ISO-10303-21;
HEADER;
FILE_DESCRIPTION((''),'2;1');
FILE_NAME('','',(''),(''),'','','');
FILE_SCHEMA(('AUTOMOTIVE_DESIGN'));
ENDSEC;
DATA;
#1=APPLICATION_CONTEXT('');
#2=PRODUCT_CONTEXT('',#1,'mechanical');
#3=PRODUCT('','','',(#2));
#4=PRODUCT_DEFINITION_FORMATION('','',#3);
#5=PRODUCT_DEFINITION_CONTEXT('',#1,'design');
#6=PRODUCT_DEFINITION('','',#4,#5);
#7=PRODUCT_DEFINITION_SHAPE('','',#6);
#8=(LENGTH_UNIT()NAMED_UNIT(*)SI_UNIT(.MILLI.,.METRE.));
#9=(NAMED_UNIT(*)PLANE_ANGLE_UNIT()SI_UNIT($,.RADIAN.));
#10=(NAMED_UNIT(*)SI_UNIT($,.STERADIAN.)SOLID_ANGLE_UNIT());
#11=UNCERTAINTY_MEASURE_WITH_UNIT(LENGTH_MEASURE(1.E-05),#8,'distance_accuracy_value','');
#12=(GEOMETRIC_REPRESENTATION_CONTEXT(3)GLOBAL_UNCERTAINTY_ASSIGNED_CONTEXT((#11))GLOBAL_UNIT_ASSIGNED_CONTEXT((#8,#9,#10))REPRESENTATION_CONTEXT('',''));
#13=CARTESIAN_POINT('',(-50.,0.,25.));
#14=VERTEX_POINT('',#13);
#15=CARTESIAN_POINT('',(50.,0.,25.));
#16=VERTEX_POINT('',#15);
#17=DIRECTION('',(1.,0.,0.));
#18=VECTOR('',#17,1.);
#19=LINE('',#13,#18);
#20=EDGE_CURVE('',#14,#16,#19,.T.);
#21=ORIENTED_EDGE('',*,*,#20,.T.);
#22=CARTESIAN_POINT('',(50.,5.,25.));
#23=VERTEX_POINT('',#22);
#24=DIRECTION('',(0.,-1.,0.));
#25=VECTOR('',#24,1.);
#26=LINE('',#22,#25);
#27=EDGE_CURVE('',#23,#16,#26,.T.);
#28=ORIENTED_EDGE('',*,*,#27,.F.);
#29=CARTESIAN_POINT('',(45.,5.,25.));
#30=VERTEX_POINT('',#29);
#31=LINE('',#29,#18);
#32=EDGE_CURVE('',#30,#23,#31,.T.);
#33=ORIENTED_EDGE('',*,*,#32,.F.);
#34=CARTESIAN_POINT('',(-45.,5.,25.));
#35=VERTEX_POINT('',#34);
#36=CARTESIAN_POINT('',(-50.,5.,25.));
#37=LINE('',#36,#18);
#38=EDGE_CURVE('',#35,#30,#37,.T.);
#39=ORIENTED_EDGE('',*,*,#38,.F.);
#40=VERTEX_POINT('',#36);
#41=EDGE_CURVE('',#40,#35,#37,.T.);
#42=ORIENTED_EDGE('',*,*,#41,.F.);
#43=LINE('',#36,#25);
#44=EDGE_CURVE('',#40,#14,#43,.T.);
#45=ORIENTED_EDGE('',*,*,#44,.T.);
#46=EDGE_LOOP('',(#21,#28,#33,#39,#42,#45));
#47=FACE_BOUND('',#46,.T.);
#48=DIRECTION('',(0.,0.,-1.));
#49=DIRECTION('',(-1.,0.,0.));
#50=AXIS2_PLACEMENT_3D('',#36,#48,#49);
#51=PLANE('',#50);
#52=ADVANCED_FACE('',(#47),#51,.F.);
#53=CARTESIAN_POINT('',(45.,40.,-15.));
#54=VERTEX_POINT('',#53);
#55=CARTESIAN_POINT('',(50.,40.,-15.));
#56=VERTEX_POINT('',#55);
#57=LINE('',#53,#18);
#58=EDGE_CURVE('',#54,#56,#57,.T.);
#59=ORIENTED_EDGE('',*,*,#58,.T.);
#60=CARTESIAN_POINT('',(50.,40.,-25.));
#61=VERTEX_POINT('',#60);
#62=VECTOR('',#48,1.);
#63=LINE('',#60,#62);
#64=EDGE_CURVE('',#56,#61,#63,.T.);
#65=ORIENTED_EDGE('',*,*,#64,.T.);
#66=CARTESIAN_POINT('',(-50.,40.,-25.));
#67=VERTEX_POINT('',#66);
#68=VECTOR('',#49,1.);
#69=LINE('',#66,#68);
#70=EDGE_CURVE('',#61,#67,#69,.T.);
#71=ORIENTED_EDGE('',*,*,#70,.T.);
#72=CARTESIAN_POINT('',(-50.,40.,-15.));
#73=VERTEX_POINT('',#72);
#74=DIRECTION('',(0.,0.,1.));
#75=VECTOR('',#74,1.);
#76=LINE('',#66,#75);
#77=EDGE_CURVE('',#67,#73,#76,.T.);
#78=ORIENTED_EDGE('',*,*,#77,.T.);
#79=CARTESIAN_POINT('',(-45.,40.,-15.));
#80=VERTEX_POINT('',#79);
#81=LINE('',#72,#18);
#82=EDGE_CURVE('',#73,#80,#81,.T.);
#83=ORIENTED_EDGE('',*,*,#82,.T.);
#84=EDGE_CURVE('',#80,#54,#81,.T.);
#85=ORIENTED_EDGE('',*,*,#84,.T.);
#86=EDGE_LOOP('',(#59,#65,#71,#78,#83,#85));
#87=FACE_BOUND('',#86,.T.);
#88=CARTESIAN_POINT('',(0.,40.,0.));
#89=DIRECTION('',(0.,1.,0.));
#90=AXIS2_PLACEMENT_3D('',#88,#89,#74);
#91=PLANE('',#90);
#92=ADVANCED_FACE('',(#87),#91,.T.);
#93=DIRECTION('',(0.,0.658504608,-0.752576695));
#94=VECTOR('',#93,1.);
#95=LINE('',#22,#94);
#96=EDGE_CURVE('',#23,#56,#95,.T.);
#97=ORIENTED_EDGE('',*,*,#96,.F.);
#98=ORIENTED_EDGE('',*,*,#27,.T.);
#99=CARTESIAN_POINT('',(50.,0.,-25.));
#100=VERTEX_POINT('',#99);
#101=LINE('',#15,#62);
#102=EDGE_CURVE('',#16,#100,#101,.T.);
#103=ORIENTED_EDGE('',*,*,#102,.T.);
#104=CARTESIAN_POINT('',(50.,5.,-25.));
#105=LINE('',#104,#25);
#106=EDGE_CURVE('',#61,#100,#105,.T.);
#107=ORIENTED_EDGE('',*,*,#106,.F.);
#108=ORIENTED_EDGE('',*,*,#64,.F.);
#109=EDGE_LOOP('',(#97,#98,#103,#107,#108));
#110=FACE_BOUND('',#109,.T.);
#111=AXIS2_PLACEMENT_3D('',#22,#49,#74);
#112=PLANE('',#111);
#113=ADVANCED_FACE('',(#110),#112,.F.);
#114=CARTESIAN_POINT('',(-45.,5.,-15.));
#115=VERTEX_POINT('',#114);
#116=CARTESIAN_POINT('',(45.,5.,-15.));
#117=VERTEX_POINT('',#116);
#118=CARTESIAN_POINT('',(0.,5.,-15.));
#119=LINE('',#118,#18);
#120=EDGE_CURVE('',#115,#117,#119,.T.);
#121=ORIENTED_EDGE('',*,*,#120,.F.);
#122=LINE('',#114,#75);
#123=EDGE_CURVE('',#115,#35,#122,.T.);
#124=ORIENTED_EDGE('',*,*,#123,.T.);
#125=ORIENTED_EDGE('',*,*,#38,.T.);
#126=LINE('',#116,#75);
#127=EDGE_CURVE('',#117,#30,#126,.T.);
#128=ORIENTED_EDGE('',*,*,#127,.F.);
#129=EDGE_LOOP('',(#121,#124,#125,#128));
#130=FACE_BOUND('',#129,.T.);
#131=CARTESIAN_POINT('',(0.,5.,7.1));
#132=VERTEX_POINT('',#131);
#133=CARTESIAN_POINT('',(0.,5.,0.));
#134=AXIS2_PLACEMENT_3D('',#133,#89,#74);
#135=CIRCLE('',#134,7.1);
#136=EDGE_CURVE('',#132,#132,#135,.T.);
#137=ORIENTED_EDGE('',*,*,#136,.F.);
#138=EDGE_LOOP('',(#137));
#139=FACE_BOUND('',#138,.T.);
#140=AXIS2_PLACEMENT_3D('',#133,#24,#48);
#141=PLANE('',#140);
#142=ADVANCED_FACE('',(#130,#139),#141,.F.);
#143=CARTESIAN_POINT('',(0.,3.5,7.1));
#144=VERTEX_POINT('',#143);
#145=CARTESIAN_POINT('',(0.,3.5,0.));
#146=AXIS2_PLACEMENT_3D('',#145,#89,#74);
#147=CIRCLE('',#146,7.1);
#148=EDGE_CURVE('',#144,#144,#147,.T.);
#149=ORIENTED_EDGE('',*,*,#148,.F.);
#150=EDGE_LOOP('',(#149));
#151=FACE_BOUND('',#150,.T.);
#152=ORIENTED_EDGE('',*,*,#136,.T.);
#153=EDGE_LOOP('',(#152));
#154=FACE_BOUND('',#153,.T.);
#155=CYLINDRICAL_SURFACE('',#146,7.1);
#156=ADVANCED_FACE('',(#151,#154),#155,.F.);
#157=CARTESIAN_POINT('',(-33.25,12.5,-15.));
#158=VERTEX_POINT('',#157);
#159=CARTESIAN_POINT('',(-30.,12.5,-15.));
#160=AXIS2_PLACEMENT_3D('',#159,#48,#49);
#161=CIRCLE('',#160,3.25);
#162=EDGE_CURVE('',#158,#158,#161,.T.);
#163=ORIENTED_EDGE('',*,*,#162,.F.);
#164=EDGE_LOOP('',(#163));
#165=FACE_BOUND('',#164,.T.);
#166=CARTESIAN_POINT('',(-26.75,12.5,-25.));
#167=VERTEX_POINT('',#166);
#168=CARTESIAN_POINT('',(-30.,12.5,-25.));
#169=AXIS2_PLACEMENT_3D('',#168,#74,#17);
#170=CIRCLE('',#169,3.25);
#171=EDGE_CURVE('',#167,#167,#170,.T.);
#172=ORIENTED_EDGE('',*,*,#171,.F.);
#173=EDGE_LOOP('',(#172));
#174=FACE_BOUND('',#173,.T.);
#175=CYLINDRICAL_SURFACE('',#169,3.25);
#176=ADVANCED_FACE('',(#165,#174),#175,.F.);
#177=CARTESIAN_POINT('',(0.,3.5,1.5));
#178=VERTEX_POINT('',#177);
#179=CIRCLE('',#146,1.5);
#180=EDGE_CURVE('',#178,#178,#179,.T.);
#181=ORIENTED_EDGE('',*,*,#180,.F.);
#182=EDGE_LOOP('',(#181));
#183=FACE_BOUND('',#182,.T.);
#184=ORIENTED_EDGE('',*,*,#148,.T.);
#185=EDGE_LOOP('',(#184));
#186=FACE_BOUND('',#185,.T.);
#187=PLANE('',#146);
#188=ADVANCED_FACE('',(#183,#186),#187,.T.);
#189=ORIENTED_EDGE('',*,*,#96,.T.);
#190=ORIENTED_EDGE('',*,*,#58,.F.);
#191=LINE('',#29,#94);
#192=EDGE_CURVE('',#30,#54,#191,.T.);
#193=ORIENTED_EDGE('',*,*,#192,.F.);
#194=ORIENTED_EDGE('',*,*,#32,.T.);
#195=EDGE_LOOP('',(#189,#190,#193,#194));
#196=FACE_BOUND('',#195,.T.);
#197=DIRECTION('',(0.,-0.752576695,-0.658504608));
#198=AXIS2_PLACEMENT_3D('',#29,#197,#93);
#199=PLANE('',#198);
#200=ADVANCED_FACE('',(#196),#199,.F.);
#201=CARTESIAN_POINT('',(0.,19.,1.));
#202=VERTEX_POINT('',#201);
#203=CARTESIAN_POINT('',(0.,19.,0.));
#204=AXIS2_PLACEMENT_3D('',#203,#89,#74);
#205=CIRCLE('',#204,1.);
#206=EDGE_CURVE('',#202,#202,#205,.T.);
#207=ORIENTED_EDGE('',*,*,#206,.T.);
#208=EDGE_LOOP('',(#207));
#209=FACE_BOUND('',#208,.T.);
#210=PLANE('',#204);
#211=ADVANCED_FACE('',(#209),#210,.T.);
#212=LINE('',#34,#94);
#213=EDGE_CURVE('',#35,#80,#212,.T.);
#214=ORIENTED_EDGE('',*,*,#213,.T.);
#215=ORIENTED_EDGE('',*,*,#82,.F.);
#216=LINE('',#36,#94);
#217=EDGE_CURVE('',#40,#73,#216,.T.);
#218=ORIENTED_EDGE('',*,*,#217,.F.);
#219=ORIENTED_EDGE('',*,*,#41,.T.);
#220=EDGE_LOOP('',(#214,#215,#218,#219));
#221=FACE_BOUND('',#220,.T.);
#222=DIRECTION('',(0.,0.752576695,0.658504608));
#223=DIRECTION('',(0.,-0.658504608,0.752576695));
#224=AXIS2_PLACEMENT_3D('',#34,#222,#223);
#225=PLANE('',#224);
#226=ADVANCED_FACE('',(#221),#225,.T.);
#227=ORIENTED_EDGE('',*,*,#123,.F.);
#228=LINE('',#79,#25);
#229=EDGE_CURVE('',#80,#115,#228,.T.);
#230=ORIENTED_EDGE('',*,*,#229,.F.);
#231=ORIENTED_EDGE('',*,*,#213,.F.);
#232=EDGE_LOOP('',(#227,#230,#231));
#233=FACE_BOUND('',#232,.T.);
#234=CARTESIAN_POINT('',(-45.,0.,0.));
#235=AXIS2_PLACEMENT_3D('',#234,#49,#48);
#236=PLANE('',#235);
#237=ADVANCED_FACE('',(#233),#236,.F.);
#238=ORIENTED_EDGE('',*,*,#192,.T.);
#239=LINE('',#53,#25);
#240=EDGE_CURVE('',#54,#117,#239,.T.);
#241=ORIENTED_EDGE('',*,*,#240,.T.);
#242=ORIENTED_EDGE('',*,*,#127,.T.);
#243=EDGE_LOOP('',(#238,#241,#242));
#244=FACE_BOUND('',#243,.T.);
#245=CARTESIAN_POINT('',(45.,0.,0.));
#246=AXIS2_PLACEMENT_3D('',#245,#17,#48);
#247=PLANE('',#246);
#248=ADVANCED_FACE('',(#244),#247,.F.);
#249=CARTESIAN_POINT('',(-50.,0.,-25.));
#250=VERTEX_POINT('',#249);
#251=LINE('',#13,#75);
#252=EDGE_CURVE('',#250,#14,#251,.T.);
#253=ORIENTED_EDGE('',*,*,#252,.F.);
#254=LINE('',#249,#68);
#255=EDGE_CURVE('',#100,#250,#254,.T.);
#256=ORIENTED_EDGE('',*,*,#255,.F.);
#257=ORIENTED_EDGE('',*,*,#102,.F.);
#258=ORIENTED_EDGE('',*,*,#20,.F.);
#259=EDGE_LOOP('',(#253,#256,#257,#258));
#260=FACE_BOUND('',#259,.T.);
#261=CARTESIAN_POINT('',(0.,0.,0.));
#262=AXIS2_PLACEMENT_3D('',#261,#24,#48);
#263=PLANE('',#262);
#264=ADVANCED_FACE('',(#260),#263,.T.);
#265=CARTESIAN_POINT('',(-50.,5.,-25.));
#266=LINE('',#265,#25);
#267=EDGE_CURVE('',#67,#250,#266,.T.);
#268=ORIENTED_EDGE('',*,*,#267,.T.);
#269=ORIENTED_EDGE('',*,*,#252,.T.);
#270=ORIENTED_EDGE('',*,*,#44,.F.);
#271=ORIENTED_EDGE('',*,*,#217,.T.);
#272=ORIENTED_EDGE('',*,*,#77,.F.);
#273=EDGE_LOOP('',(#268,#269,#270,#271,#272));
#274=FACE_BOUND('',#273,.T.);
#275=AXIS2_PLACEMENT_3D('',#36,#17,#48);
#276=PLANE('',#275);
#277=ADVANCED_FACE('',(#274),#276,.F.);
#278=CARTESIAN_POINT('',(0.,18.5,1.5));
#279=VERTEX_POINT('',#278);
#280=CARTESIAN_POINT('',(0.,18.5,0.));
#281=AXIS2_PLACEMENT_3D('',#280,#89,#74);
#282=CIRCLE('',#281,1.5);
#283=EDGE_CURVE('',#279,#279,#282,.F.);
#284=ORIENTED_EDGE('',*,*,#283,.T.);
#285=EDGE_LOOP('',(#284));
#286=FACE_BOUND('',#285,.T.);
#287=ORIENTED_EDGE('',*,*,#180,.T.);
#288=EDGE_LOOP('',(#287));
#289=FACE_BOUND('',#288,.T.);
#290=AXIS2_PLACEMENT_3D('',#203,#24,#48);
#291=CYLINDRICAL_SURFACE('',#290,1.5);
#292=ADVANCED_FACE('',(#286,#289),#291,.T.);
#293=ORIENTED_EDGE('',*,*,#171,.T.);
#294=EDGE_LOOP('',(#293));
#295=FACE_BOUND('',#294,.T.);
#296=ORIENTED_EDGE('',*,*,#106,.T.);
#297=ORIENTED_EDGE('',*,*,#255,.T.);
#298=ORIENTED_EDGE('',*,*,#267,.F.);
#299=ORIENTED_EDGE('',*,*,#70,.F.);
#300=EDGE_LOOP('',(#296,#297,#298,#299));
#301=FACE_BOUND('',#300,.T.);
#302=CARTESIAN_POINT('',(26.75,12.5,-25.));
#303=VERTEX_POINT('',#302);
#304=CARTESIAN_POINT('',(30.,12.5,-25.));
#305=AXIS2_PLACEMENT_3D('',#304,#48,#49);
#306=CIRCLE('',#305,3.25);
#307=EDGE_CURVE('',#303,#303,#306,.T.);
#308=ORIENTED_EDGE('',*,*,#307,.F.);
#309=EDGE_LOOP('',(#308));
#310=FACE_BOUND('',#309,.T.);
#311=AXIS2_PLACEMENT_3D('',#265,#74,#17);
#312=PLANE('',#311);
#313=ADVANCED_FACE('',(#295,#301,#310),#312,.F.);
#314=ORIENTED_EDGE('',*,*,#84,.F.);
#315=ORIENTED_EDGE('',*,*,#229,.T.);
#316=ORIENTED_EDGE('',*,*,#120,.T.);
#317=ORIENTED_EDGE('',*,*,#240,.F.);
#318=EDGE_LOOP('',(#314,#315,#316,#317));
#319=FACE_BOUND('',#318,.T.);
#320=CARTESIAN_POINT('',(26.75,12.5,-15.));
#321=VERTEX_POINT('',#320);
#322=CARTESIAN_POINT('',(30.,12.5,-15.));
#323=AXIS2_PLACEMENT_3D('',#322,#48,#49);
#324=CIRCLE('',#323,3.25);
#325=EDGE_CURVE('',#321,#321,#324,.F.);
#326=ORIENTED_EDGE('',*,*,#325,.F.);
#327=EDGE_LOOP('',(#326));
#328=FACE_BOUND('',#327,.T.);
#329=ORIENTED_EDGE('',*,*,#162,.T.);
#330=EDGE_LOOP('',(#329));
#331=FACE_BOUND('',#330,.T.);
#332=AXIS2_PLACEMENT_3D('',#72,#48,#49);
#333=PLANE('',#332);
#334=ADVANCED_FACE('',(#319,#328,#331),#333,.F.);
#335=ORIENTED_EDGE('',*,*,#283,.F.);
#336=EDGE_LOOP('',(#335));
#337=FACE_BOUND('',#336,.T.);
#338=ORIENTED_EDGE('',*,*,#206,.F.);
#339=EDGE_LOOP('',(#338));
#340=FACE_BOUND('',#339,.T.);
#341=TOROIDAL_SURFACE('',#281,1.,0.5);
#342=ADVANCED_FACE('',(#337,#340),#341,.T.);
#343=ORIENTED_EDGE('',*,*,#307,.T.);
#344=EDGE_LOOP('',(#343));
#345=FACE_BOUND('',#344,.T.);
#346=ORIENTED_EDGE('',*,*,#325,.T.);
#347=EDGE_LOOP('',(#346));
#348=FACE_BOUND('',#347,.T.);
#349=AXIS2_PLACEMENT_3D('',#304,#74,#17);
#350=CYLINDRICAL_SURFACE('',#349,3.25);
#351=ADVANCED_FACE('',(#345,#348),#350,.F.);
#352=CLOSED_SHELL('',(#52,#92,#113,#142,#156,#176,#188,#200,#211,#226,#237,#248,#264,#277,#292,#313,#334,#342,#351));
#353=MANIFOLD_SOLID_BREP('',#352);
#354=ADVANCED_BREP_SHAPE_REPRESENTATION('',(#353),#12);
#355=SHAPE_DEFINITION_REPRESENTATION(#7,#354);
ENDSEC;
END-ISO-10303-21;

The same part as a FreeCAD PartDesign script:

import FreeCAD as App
import Part
import Sketcher
from FreeCAD import Vector


def edges_at(feature, points):
    """Names of the edges that pass closest to the given points."""
    edges = feature.Shape.Edges
    near = lambda p: min(range(len(edges)), key=lambda i: edges[i].distToShape(Part.Vertex(*p))[0])
    return sorted({f"Edge{near(p) + 1}" for p in points})


def add_polygon(sketch, points):
    """Adds a closed chain of lines whose ends are joined by coincident constraints."""
    first, n = sketch.GeometryCount, len(points)
    for a, b in zip(points, points[1:] + points[:1]):
        sketch.addGeometry(Part.LineSegment(App.Vector(*a, 0), App.Vector(*b, 0)), False)
    for i in range(n):
        sketch.addConstraint(Sketcher.Constraint("Coincident", first + i, 2, first + (i + 1) % n, 1))

doc = App.newDocument("Part")
body = doc.addObject("PartDesign::Body", "Body")

sketch1 = doc.addObject("Sketcher::SketchObject", "Sketch")
body.addObject(sketch1)
sketch1.AttachmentSupport = (doc.XZ_Plane, [""])
sketch1.MapMode = "FlatFace"
add_polygon(sketch1, [(-50, -25), (-50, 25), (50, 25), (50, -25)])
sketch1.addConstraint([
    Sketcher.Constraint("Vertical", 0),
    Sketcher.Constraint("Horizontal", 1),
    Sketcher.Constraint("Vertical", 2),
    Sketcher.Constraint("Horizontal", 3),
    Sketcher.Constraint("Symmetric", 0, 2, 2, 2, -1, 1),
    Sketcher.Constraint("DistanceX", 1, 1, 1, 2, 100.0),
    Sketcher.Constraint("DistanceY", 0, 1, 0, 2, 50.0),
])
pad1 = doc.addObject("PartDesign::Pad", "Pad")
body.addObject(pad1)
pad1.Profile = sketch1
pad1.Length = 5
pad1.Reversed = True

sketch2 = doc.addObject("Sketcher::SketchObject", "Sketch001")
body.addObject(sketch2)
sketch2.AttachmentSupport = (doc.XZ_Plane, [""])
sketch2.MapMode = "FlatFace"
add_polygon(sketch2, [(-50, -25), (-50, -15), (50, -15), (50, -25)])
sketch2.addConstraint([
    Sketcher.Constraint("Vertical", 0),
    Sketcher.Constraint("Horizontal", 1),
    Sketcher.Constraint("Vertical", 2),
    Sketcher.Constraint("Horizontal", 3),
    Sketcher.Constraint("DistanceX", 1, 1, 1, 2, 100.0),
    Sketcher.Constraint("DistanceY", 0, 1, 0, 2, 10.0),
    Sketcher.Constraint("DistanceX", 0, 2, -1, 1, 50.0),
    Sketcher.Constraint("DistanceY", 0, 2, -1, 1, 15.0),
])
pad2 = doc.addObject("PartDesign::Pad", "Pad001")
body.addObject(pad2)
pad2.Profile = sketch2
pad2.Length = 40
pad2.Reversed = True

sketch3 = doc.addObject("Sketcher::SketchObject", "Sketch002")
body.addObject(sketch3)
sketch3.AttachmentSupport = (doc.XY_Plane, [""])
sketch3.MapMode = "FlatFace"
sketch3.AttachmentOffset = App.Placement(Vector(0, 0, -15), App.Rotation())
sketch3.addGeometry(Part.Circle(Vector(-30, 12.5, 0), Vector(0, 0, 1), 3.2), False)
sketch3.addConstraint([
    Sketcher.Constraint("Diameter", 0, 6.5),
    Sketcher.Constraint("DistanceX", 0, 3, -1, 1, 30.0),
    Sketcher.Constraint("DistanceY", -1, 1, 0, 3, 12.5),
])
pocket1 = doc.addObject("PartDesign::Pocket", "Pocket")
body.addObject(pocket1)
pocket1.Profile = sketch3
pocket1.Type = "ThroughAll"
pocket1.Midplane = True

sketch4 = doc.addObject("Sketcher::SketchObject", "Sketch003")
body.addObject(sketch4)
sketch4.AttachmentSupport = (doc.XY_Plane, [""])
sketch4.MapMode = "FlatFace"
sketch4.AttachmentOffset = App.Placement(Vector(0, 0, -15), App.Rotation())
sketch4.addGeometry(Part.Circle(Vector(30, 12.5, 0), Vector(0, 0, 1), 3.2), False)
sketch4.addConstraint([
    Sketcher.Constraint("Diameter", 0, 6.5),
    Sketcher.Constraint("DistanceX", -1, 1, 0, 3, 30.0),
    Sketcher.Constraint("DistanceY", -1, 1, 0, 3, 12.5),
])
pocket2 = doc.addObject("PartDesign::Pocket", "Pocket001")
body.addObject(pocket2)
pocket2.Profile = sketch4
pocket2.Type = "ThroughAll"
pocket2.Midplane = True

sketch5 = doc.addObject("Sketcher::SketchObject", "Sketch004")
body.addObject(sketch5)
sketch5.AttachmentSupport = (doc.YZ_Plane, [""])
sketch5.MapMode = "FlatFace"
sketch5.AttachmentOffset = App.Placement(Vector(0, 0, 50), App.Rotation())
add_polygon(sketch5, [(5, -15), (40, -15), (5, 25)])
sketch5.addConstraint([
    Sketcher.Constraint("Horizontal", 0),
    Sketcher.Constraint("Vertical", 2),
    Sketcher.Constraint("DistanceX", 0, 1, 0, 2, 35.0),
    Sketcher.Constraint("DistanceY", 2, 2, 2, 1, 40.0),
    Sketcher.Constraint("DistanceX", -1, 1, 0, 2, 40.0),
    Sketcher.Constraint("DistanceY", 0, 2, -1, 1, 15.0),
])
pad3 = doc.addObject("PartDesign::Pad", "Pad002")
body.addObject(pad3)
pad3.Profile = sketch5
pad3.Length = 5
pad3.Reversed = True
doc.recompute()

mirrored = doc.addObject("PartDesign::Mirrored", "Mirrored")
body.addObject(mirrored)
mirrored.Originals = [pad3]
mirrored.MirrorPlane = (doc.YZ_Plane, [""])
body.Tip = mirrored

sketch6 = doc.addObject("Sketcher::SketchObject", "Sketch005")
body.addObject(sketch6)
sketch6.AttachmentSupport = (doc.XZ_Plane, [""])
sketch6.MapMode = "FlatFace"
sketch6.AttachmentOffset = App.Placement(Vector(0, 0, -5), App.Rotation())
sketch6.addGeometry(Part.Circle(Vector(0, 0, 0), Vector(0, 0, 1), 7), False)
sketch6.addConstraint([
    Sketcher.Constraint("Coincident", 0, 3, -1, 1),
    Sketcher.Constraint("Diameter", 0, 14.2),
])
pocket3 = doc.addObject("PartDesign::Pocket", "Pocket002")
body.addObject(pocket3)
pocket3.Profile = sketch6
pocket3.Length = 1.5
pocket3.Reversed = True

sketch7 = doc.addObject("Sketcher::SketchObject", "Sketch006")
body.addObject(sketch7)
sketch7.AttachmentSupport = (doc.XZ_Plane, [""])
sketch7.MapMode = "FlatFace"
sketch7.AttachmentOffset = App.Placement(Vector(0, 0, -3.5), App.Rotation())
sketch7.addGeometry(Part.Circle(Vector(0, 0, 0), Vector(0, 0, 1), 1.5), False)
sketch7.addConstraint([
    Sketcher.Constraint("Coincident", 0, 3, -1, 1),
    Sketcher.Constraint("Diameter", 0, 3.0),
])
pad4 = doc.addObject("PartDesign::Pad", "Pad003")
body.addObject(pad4)
pad4.Profile = sketch7
pad4.Length = 15.5
pad4.Reversed = True
doc.recompute()

fillet = doc.addObject("PartDesign::Fillet", "Fillet")
body.addObject(fillet)
fillet.Base = (pad4, edges_at(pad4, [(0, 19, -1.5)]))
fillet.Radius = 0.5

doc.recompute()
